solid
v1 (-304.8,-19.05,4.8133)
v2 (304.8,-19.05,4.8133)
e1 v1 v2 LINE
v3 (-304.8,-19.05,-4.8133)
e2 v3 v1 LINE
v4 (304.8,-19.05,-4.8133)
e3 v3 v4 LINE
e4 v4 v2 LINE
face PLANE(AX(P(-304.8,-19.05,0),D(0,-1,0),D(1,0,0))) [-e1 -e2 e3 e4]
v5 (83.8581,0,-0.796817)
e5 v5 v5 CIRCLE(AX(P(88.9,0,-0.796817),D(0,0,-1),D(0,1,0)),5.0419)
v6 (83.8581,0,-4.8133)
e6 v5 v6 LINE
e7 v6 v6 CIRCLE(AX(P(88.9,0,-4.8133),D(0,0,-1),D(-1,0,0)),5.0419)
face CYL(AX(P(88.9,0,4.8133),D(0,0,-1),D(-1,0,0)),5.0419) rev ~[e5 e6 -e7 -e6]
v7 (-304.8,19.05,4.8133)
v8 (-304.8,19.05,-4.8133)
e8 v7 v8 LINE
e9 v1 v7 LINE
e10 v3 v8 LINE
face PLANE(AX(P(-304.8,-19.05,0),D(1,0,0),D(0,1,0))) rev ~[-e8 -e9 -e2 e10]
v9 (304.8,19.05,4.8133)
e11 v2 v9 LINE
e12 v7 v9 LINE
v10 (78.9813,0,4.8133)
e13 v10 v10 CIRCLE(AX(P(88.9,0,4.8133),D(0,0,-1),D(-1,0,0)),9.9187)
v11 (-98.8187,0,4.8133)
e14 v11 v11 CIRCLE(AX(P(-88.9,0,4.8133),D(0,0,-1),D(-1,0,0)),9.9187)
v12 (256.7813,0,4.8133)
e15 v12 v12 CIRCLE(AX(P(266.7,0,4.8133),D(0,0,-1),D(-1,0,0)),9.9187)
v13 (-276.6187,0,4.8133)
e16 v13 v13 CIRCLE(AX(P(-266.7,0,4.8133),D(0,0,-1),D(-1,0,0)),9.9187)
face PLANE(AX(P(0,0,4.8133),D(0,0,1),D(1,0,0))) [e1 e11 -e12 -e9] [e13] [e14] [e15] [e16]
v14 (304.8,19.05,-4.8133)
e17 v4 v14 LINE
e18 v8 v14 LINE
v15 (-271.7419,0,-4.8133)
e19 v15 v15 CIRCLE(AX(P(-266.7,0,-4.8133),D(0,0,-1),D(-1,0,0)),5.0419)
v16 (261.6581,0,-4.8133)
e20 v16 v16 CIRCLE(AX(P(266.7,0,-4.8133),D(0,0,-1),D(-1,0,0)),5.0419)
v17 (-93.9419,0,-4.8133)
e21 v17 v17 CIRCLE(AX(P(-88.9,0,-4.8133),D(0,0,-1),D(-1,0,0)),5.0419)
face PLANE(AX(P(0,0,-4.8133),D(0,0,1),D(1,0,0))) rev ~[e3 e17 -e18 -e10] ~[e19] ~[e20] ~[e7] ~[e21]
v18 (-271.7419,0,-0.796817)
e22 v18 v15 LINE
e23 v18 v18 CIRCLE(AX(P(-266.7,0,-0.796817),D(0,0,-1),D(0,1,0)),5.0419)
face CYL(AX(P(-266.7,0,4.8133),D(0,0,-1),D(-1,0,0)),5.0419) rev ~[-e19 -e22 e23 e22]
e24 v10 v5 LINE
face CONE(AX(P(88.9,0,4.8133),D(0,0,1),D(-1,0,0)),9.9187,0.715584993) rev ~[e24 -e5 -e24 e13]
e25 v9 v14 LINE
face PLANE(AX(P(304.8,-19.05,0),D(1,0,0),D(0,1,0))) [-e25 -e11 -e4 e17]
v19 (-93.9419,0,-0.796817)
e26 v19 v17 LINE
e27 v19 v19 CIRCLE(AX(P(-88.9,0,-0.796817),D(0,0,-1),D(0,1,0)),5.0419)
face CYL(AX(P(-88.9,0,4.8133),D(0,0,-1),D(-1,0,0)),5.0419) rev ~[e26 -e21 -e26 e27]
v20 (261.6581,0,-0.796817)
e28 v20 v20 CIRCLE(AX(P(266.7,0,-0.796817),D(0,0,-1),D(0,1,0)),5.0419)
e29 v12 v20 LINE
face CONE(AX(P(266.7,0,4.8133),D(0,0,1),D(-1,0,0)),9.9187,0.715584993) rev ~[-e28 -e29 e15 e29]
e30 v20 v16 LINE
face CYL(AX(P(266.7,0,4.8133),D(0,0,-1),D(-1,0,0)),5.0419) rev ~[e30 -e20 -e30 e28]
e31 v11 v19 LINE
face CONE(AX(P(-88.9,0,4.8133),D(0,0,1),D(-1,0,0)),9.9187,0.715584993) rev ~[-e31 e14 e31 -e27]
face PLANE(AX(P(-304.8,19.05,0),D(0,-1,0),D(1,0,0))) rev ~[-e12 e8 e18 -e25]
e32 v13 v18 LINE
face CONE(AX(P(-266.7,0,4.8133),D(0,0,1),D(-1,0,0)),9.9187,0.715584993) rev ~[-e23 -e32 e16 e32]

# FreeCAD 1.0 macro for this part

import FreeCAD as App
import Part
import Sketcher

V = App.Vector
Q = App.Units.Quantity

doc = App.newDocument("Part")
params = doc.addObject("Spreadsheet::Sheet", "Params")
for row, (alias, value) in enumerate([
    ("sketch1_width", "24 in"),
    ("sketch1_height", "1.5 in"),
    ("pad1_length", "0.379 in"),
    ("sketch2_diameter", "0.397 in"),
    ("hole_diameter", "0.397 in"),
    ("hole_csink_diameter", "0.781 in"),
], start=1):
    params.set(f"A{row}", alias)
    params.set(f"B{row}", "=" + value)
    params.setAlias(f"B{row}", alias)

body = doc.addObject("PartDesign::Body", "Body")

sketch1 = doc.addObject("Sketcher::SketchObject", "Sketch")
body.addObject(sketch1)
sketch1.AttachmentSupport = (doc.XY_Plane, [""])
sketch1.MapMode = "FlatFace"
sketch1.addGeometry(Part.LineSegment(V(-305, 19, 0), V(-305, -19, 0)), False)
sketch1.addGeometry(Part.LineSegment(V(-305, -19, 0), V(305, -19, 0)), False)
sketch1.addGeometry(Part.LineSegment(V(305, -19, 0), V(305, 19, 0)), False)
sketch1.addGeometry(Part.LineSegment(V(305, 19, 0), V(-305, 19, 0)), False)
sketch1.addConstraint(Sketcher.Constraint("Coincident", 0, 2, 1, 1))
sketch1.addConstraint(Sketcher.Constraint("Coincident", 1, 2, 2, 1))
sketch1.addConstraint(Sketcher.Constraint("Coincident", 2, 2, 3, 1))
sketch1.addConstraint(Sketcher.Constraint("Coincident", 3, 2, 0, 1))
sketch1.addConstraint(Sketcher.Constraint("Vertical", 0))
sketch1.addConstraint(Sketcher.Constraint("Horizontal", 1))
sketch1.addConstraint(Sketcher.Constraint("Vertical", 2))
sketch1.addConstraint(Sketcher.Constraint("Horizontal", 3))
sketch1.addConstraint(Sketcher.Constraint("Symmetric", 0, 2, 2, 2, -1, 1))
sketch1.addConstraint(Sketcher.Constraint("DistanceX", 1, 1, 1, 2, Q("24 in")))
sketch1.addConstraint(Sketcher.Constraint("DistanceY", 0, 2, 0, 1, Q("1.5 in")))
sketch1.setExpression("Constraints[9]", "Params.sketch1_width")
sketch1.setExpression("Constraints[10]", "Params.sketch1_height")
pad1 = doc.addObject("PartDesign::Pad", "Pad")
body.addObject(pad1)
pad1.Profile = sketch1
pad1.setExpression("Length", "Params.pad1_length")
pad1.Midplane = True

sketch2 = doc.addObject("Sketcher::SketchObject", "Sketch001")
body.addObject(sketch2)
sketch2.AttachmentSupport = (doc.XY_Plane, [""])
sketch2.MapMode = "FlatFace"
sketch2.AttachmentOffset = App.Placement(V(0, 0, 0.1895 * 25.4), App.Rotation())
sketch2.addGeometry(Part.Circle(V(-267, 0, 0), V(0, 0, 1), 5), False)
sketch2.addGeometry(Part.Circle(V(-89, 0, 0), V(0, 0, 1), 5), False)
sketch2.addGeometry(Part.Circle(V(89, 0, 0), V(0, 0, 1), 5), False)
sketch2.addGeometry(Part.Circle(V(267, 0, 0), V(0, 0, 1), 5), False)
sketch2.addConstraint(Sketcher.Constraint("Equal", 0, 1))
sketch2.addConstraint(Sketcher.Constraint("Equal", 1, 2))
sketch2.addConstraint(Sketcher.Constraint("Equal", 2, 3))
sketch2.addConstraint(Sketcher.Constraint("Symmetric", 1, 3, 2, 3, -1, 1))
sketch2.addConstraint(Sketcher.Constraint("Symmetric", 0, 3, 3, 3, -1, 1))
sketch2.addConstraint(Sketcher.Constraint("PointOnObject", 0, 3, -1))
sketch2.addConstraint(Sketcher.Constraint("PointOnObject", 1, 3, -1))
sketch2.addConstraint(Sketcher.Constraint("Diameter", 0, Q("0.397 in")))
sketch2.addConstraint(Sketcher.Constraint("DistanceX", 0, 3, 1, 3, Q("7 in")))
sketch2.addConstraint(Sketcher.Constraint("DistanceX", 1, 3, 2, 3, Q("7 in")))
sketch2.setExpression("Constraints[7]", "Params.sketch2_diameter")
doc.recompute()
hole = doc.addObject("PartDesign::Hole", "Hole")
body.addObject(hole)
hole.Profile = sketch2
hole.ThreadType = "None"
hole.setExpression("Diameter", "Params.hole_diameter")
hole.DepthType = "ThroughAll"
hole.HoleCutType = "Countersink"
hole.setExpression("HoleCutDiameter", "Params.hole_csink_diameter")
hole.HoleCutCountersinkAngle = 82

doc.recompute()
